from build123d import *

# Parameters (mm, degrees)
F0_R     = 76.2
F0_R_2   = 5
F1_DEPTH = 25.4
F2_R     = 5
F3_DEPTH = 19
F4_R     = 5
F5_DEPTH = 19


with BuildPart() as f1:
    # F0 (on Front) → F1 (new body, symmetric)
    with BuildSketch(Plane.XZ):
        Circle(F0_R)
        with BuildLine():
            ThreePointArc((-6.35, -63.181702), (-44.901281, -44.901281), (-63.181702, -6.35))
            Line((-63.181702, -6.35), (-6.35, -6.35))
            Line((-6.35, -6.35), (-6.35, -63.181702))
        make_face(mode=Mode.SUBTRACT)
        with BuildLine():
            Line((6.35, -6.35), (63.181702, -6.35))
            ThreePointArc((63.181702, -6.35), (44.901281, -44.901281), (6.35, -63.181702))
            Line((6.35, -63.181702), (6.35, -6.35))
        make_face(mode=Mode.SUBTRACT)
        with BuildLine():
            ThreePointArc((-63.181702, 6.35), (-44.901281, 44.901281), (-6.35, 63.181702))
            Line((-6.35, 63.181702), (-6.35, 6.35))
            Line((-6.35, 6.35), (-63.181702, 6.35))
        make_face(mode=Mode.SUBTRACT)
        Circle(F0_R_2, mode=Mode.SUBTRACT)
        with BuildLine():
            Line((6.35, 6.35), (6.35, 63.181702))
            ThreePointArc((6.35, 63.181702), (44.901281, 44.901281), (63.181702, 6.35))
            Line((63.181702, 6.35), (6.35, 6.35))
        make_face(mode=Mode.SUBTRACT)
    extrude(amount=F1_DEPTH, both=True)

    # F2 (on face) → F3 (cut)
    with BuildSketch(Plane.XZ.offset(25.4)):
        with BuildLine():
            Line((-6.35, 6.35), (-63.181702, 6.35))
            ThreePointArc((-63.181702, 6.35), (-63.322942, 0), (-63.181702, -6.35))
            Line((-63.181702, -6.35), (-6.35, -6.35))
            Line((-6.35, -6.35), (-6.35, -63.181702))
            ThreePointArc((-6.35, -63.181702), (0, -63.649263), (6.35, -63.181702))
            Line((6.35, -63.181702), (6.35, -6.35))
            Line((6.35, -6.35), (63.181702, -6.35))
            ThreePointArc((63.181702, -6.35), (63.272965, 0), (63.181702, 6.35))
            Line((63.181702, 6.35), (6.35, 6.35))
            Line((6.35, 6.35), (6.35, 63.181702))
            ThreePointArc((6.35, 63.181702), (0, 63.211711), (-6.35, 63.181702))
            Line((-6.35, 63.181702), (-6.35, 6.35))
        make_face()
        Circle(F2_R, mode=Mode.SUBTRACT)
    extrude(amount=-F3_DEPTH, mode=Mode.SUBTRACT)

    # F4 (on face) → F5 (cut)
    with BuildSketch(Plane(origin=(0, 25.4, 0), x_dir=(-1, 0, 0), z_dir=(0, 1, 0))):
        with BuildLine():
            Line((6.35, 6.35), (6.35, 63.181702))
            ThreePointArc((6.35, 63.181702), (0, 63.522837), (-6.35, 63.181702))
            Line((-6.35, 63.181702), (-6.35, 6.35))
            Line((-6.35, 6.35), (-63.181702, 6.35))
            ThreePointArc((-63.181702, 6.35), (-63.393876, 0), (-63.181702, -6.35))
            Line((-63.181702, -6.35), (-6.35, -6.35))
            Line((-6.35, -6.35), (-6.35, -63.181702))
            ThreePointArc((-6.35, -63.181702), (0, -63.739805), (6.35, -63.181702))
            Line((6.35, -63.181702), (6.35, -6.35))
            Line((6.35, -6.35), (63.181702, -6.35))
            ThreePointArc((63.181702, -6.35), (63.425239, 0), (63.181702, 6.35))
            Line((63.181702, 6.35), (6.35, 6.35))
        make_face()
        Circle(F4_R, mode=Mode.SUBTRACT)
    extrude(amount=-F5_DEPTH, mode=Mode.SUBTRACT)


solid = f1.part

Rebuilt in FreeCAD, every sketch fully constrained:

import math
import FreeCAD as App
import Part
import Sketcher
from FreeCAD import Vector
Q = App.Units.Quantity

doc = App.newDocument("Part")
body = doc.addObject("PartDesign::Body", "Body")

# Sketch on XZ plane
sketch1 = body.newObject("Sketcher::SketchObject", "Sketch")
sketch1.AttachmentSupport = (doc.getObject("XZ_Plane"), [""])
sketch1.MapMode = "FlatFace"
sketch1.addGeometry(Part.Circle(Vector(0, 0, 0), Vector(0, 0, 1), 76), False)
sketch1.addGeometry(Part.LineSegment(Vector(-6, -6, 0), Vector(-6, -63, 0)), False)
sketch1.addGeometry(Part.ArcOfCircle(Part.Circle(Vector(0, 0, 0), Vector(0, 0, 1), 63), math.radians(-174), math.radians(-96)), False)
sketch1.addGeometry(Part.LineSegment(Vector(-63, -6, 0), Vector(-6, -6, 0)), False)
sketch1.addGeometry(Part.Circle(Vector(0, 0, 0), Vector(0, 0, 1), 5), False)
sketch1.addGeometry(Part.LineSegment(Vector(6, -63, 0), Vector(6, -6, 0)), False)
sketch1.addGeometry(Part.LineSegment(Vector(6, -6, 0), Vector(63, -6, 0)), False)
sketch1.addGeometry(Part.ArcOfCircle(Part.Circle(Vector(0, 0, 0), Vector(0, 0, 1), 63), math.radians(-84), math.radians(-6)), False)
sketch1.addGeometry(Part.LineSegment(Vector(-6, 6, 0), Vector(-63, 6, 0)), False)
sketch1.addGeometry(Part.ArcOfCircle(Part.Circle(Vector(0, 0, 0), Vector(0, 0, 1), 63), math.radians(96), math.radians(174)), False)
sketch1.addGeometry(Part.LineSegment(Vector(-6, 63, 0), Vector(-6, 6, 0)), False)
sketch1.addGeometry(Part.LineSegment(Vector(63, 6, 0), Vector(6, 6, 0)), False)
sketch1.addGeometry(Part.LineSegment(Vector(6, 6, 0), Vector(6, 63, 0)), False)
sketch1.addGeometry(Part.ArcOfCircle(Part.Circle(Vector(0, 0, 0), Vector(0, 0, 1), 63), math.radians(6), math.radians(84)), False)
sketch1.addConstraint(Sketcher.Constraint("Coincident", 1, 2, 2, 2))
sketch1.addConstraint(Sketcher.Constraint("Coincident", 2, 1, 3, 1))
sketch1.addConstraint(Sketcher.Constraint("Coincident", 3, 2, 1, 1))
sketch1.addConstraint(Sketcher.Constraint("Coincident", 5, 2, 6, 1))
sketch1.addConstraint(Sketcher.Constraint("Coincident", 6, 2, 7, 2))
sketch1.addConstraint(Sketcher.Constraint("Coincident", 7, 1, 5, 1))
sketch1.addConstraint(Sketcher.Constraint("Coincident", 8, 2, 9, 2))
sketch1.addConstraint(Sketcher.Constraint("Coincident", 9, 1, 10, 1))
sketch1.addConstraint(Sketcher.Constraint("Coincident", 10, 2, 8, 1))
sketch1.addConstraint(Sketcher.Constraint("Coincident", 11, 2, 12, 1))
sketch1.addConstraint(Sketcher.Constraint("Coincident", 12, 2, 13, 2))
sketch1.addConstraint(Sketcher.Constraint("Coincident", 13, 1, 11, 1))
sketch1.addConstraint(Sketcher.Constraint("Vertical", 1))
sketch1.addConstraint(Sketcher.Constraint("Horizontal", 3))
sketch1.addConstraint(Sketcher.Constraint("Vertical", 5))
sketch1.addConstraint(Sketcher.Constraint("Horizontal", 6))
sketch1.addConstraint(Sketcher.Constraint("Horizontal", 8))
sketch1.addConstraint(Sketcher.Constraint("Vertical", 10))
sketch1.addConstraint(Sketcher.Constraint("Horizontal", 11))
sketch1.addConstraint(Sketcher.Constraint("Vertical", 12))
sketch1.addConstraint(Sketcher.Constraint("Coincident", 0, 3, -1, 1))
sketch1.addConstraint(Sketcher.Constraint("Coincident", 2, 3, -1, 1))
sketch1.addConstraint(Sketcher.Constraint("Coincident", 4, 3, -1, 1))
sketch1.addConstraint(Sketcher.Constraint("Coincident", 7, 3, -1, 1))
sketch1.addConstraint(Sketcher.Constraint("Coincident", 9, 3, -1, 1))
sketch1.addConstraint(Sketcher.Constraint("Coincident", 13, 3, -1, 1))
sketch1.addConstraint(Sketcher.Constraint("Equal", 2, 7))
sketch1.addConstraint(Sketcher.Constraint("Equal", 7, 9))
sketch1.addConstraint(Sketcher.Constraint("Equal", 9, 13))
sketch1.addConstraint(Sketcher.Constraint("Symmetric", 5, 2, 10, 2, -1, 1))
sketch1.addConstraint(Sketcher.Constraint("Symmetric", 3, 2, 11, 2, -1, 1))
sketch1.addConstraint(Sketcher.Constraint("Symmetric", 3, 2, 5, 2, -2))
sketch1.addConstraint(Sketcher.Constraint("Equal", 11, 1))
sketch1.addConstraint(Sketcher.Constraint("Diameter", 4, Q("10 mm")))
sketch1.addConstraint(Sketcher.Constraint("Diameter", 0, Q("152.4 mm")))
sketch1.addConstraint(Sketcher.Constraint("DistanceX", 1, 2, 7, 1, Q("12.7 mm")))
sketch1.addConstraint(Sketcher.Constraint("Radius", 2, Q("63.499997 mm")))
pad1 = body.newObject("PartDesign::Pad", "Pad")
pad1.Profile = sketch1
pad1.Length = 50.8
pad1.Midplane = True

# Sketch on XZ plane
sketch2 = body.newObject("Sketcher::SketchObject", "Sketch001")
sketch2.AttachmentSupport = (doc.getObject("XZ_Plane"), [""])
sketch2.MapMode = "FlatFace"
sketch2.AttachmentOffset = App.Placement(Vector(0, 0, 25.4), App.Rotation())
sketch2.addGeometry(Part.LineSegment(Vector(-6, 6, 0), Vector(-63, 6, 0)), False)
sketch2.addGeometry(Part.ArcOfCircle(Part.Circle(Vector(79, 0, 0), Vector(0, 0, 1), 143), math.radians(177.45), math.radians(182.55)), False)
sketch2.addGeometry(Part.LineSegment(Vector(-63, -6, 0), Vector(-6, -6, 0)), False)
sketch2.addGeometry(Part.LineSegment(Vector(-6, -6, 0), Vector(-6, -63, 0)), False)
sketch2.addGeometry(Part.ArcOfCircle(Part.Circle(Vector(0, -20, 0), Vector(0, 0, 1), 43), math.radians(-98.42), math.radians(-81.58)), False)
sketch2.addGeometry(Part.LineSegment(Vector(6, -63, 0), Vector(6, -6, 0)), False)
sketch2.addGeometry(Part.LineSegment(Vector(6, -6, 0), Vector(63, -6, 0)), False)
sketch2.addGeometry(Part.ArcOfCircle(Part.Circle(Vector(-158, 0, 0), Vector(0, 0, 1), 221), math.radians(-1.65), math.radians(1.65)), False)
sketch2.addGeometry(Part.LineSegment(Vector(63, 6, 0), Vector(6, 6, 0)), False)
sketch2.addGeometry(Part.LineSegment(Vector(6, 6, 0), Vector(6, 63, 0)), False)
sketch2.addGeometry(Part.ArcOfCircle(Part.Circle(Vector(0, -609, 0), Vector(0, 0, 1), 672), math.radians(89.46), math.radians(90.54)), False)
sketch2.addGeometry(Part.LineSegment(Vector(-6, 63, 0), Vector(-6, 6, 0)), False)
sketch2.addGeometry(Part.Circle(Vector(0, 0, 0), Vector(0, 0, 1), 5), False)
sketch2.addConstraint(Sketcher.Constraint("Coincident", 0, 2, 1, 1))
sketch2.addConstraint(Sketcher.Constraint("Coincident", 1, 2, 2, 1))
sketch2.addConstraint(Sketcher.Constraint("Coincident", 2, 2, 3, 1))
sketch2.addConstraint(Sketcher.Constraint("Coincident", 3, 2, 4, 1))
sketch2.addConstraint(Sketcher.Constraint("Coincident", 4, 2, 5, 1))
sketch2.addConstraint(Sketcher.Constraint("Coincident", 5, 2, 6, 1))
sketch2.addConstraint(Sketcher.Constraint("Coincident", 6, 2, 7, 1))
sketch2.addConstraint(Sketcher.Constraint("Coincident", 7, 2, 8, 1))
sketch2.addConstraint(Sketcher.Constraint("Coincident", 8, 2, 9, 1))
sketch2.addConstraint(Sketcher.Constraint("Coincident", 9, 2, 10, 1))
sketch2.addConstraint(Sketcher.Constraint("Coincident", 10, 2, 11, 1))
sketch2.addConstraint(Sketcher.Constraint("Coincident", 11, 2, 0, 1))
sketch2.addConstraint(Sketcher.Constraint("Horizontal", 0))
sketch2.addConstraint(Sketcher.Constraint("Horizontal", 2))
sketch2.addConstraint(Sketcher.Constraint("Vertical", 3))
sketch2.addConstraint(Sketcher.Constraint("Vertical", 5))
sketch2.addConstraint(Sketcher.Constraint("Horizontal", 6))
sketch2.addConstraint(Sketcher.Constraint("Horizontal", 8))
sketch2.addConstraint(Sketcher.Constraint("Vertical", 9))
sketch2.addConstraint(Sketcher.Constraint("Vertical", 11))
sketch2.addConstraint(Sketcher.Constraint("Coincident", 12, 3, -1, 1))
sketch2.addConstraint(Sketcher.Constraint("Symmetric", 0, 2, 6, 2, -1, 1))
sketch2.addConstraint(Sketcher.Constraint("Symmetric", 1, 2, 7, 2, -1, 1))
sketch2.addConstraint(Sketcher.Constraint("Symmetric", 3, 2, 9, 2, -1, 1))
sketch2.addConstraint(Sketcher.Constraint("Symmetric", 3, 2, 4, 2, -2))
sketch2.addConstraint(Sketcher.Constraint("Symmetric", 1, 2, 6, 2, -2))
sketch2.addConstraint(Sketcher.Constraint("PointOnObject", 10, 3, -2))
sketch2.addConstraint(Sketcher.Constraint("Equal", 0, 2))
sketch2.addConstraint(Sketcher.Constraint("Equal", 8, 3))
sketch2.addConstraint(Sketcher.Constraint("Diameter", 12, Q("10 mm")))
sketch2.addConstraint(Sketcher.Constraint("DistanceY", 1, 2, 0, 2, Q("12.7 mm")))
sketch2.addConstraint(Sketcher.Constraint("DistanceX", 3, 2, 4, 2, Q("12.7 mm")))
sketch2.addConstraint(Sketcher.Constraint("Radius", 1, Q("142.815239 mm")))
sketch2.addConstraint(Sketcher.Constraint("Radius", 10, Q("671.855119 mm")))
sketch2.addConstraint(Sketcher.Constraint("Radius", 4, Q("43.353823 mm")))
sketch2.addConstraint(Sketcher.Constraint("Radius", 7, Q("220.959364 mm")))
sketch2.addConstraint(Sketcher.Constraint("DistanceX", 7, 3, -1, 1, Q("157.686399 mm")))
pocket1 = body.newObject("PartDesign::Pocket", "Pocket")
pocket1.Profile = sketch2
pocket1.Length = 19

# Sketch on XZ plane
sketch3 = body.newObject("Sketcher::SketchObject", "Sketch002")
sketch3.AttachmentSupport = (doc.getObject("XZ_Plane"), [""])
sketch3.MapMode = "FlatFace"
sketch3.AttachmentOffset = App.Placement(Vector(0, 0, -25.4), App.Rotation())
sketch3.addGeometry(Part.LineSegment(Vector(-6, 6, 0), Vector(-6, 63, 0)), False)
sketch3.addGeometry(Part.ArcOfCircle(Part.Circle(Vector(0, 4, 0), Vector(0, 0, 1), 59), math.radians(83.85), math.radians(96.15)), False)
sketch3.addGeometry(Part.LineSegment(Vector(6, 63, 0), Vector(6, 6, 0)), False)
sketch3.addGeometry(Part.LineSegment(Vector(6, 6, 0), Vector(63, 6, 0)), False)
sketch3.addGeometry(Part.ArcOfCircle(Part.Circle(Vector(-32, 0, 0), Vector(0, 0, 1), 95), math.radians(-3.83), math.radians(3.83)), False)
sketch3.addGeometry(Part.LineSegment(Vector(63, -6, 0), Vector(6, -6, 0)), False)
sketch3.addGeometry(Part.LineSegment(Vector(6, -6, 0), Vector(6, -63, 0)), False)
sketch3.addGeometry(Part.ArcOfCircle(Part.Circle(Vector(0, -27, 0), Vector(0, 0, 1), 36), math.radians(-100), math.radians(-80)), False)
sketch3.addGeometry(Part.LineSegment(Vector(-6, -63, 0), Vector(-6, -6, 0)), False)
sketch3.addGeometry(Part.LineSegment(Vector(-6, -6, 0), Vector(-63, -6, 0)), False)
sketch3.addGeometry(Part.ArcOfCircle(Part.Circle(Vector(19, 0, 0), Vector(0, 0, 1), 83), math.radians(175.61), math.radians(184.39)), False)
sketch3.addGeometry(Part.LineSegment(Vector(-63, 6, 0), Vector(-6, 6, 0)), False)
sketch3.addGeometry(Part.Circle(Vector(0, 0, 0), Vector(0, 0, 1), 5), False)
sketch3.addConstraint(Sketcher.Constraint("Coincident", 0, 2, 1, 2))
sketch3.addConstraint(Sketcher.Constraint("Coincident", 1, 1, 2, 1))
sketch3.addConstraint(Sketcher.Constraint("Coincident", 2, 2, 3, 1))
sketch3.addConstraint(Sketcher.Constraint("Coincident", 3, 2, 4, 2))
sketch3.addConstraint(Sketcher.Constraint("Coincident", 4, 1, 5, 1))
sketch3.addConstraint(Sketcher.Constraint("Coincident", 5, 2, 6, 1))
sketch3.addConstraint(Sketcher.Constraint("Coincident", 6, 2, 7, 2))
sketch3.addConstraint(Sketcher.Constraint("Coincident", 7, 1, 8, 1))
sketch3.addConstraint(Sketcher.Constraint("Coincident", 8, 2, 9, 1))
sketch3.addConstraint(Sketcher.Constraint("Coincident", 9, 2, 10, 2))
sketch3.addConstraint(Sketcher.Constraint("Coincident", 10, 1, 11, 1))
sketch3.addConstraint(Sketcher.Constraint("Coincident", 11, 2, 0, 1))
sketch3.addConstraint(Sketcher.Constraint("Vertical", 0))
sketch3.addConstraint(Sketcher.Constraint("Vertical", 2))
sketch3.addConstraint(Sketcher.Constraint("Horizontal", 3))
sketch3.addConstraint(Sketcher.Constraint("Horizontal", 5))
sketch3.addConstraint(Sketcher.Constraint("Vertical", 6))
sketch3.addConstraint(Sketcher.Constraint("Vertical", 8))
sketch3.addConstraint(Sketcher.Constraint("Horizontal", 9))
sketch3.addConstraint(Sketcher.Constraint("Horizontal", 11))
sketch3.addConstraint(Sketcher.Constraint("Coincident", 12, 3, -1, 1))
sketch3.addConstraint(Sketcher.Constraint("Symmetric", 0, 2, 6, 2, -1, 1))
sketch3.addConstraint(Sketcher.Constraint("Symmetric", 1, 1, 7, 1, -1, 1))
sketch3.addConstraint(Sketcher.Constraint("Symmetric", 3, 2, 9, 2, -1, 1))
sketch3.addConstraint(Sketcher.Constraint("Symmetric", 4, 1, 10, 1, -1, 1))
sketch3.addConstraint(Sketcher.Constraint("Symmetric", 0, 2, 1, 1, -2))
sketch3.addConstraint(Sketcher.Constraint("Symmetric", 4, 1, 9, 2, -2))
sketch3.addConstraint(Sketcher.Constraint("Equal", 11, 0))
sketch3.addConstraint(Sketcher.Constraint("Diameter", 12, Q("10 mm")))
sketch3.addConstraint(Sketcher.Constraint("DistanceX", 0, 2, 1, 1, Q("12.7 mm")))
sketch3.addConstraint(Sketcher.Constraint("DistanceY", 4, 1, 3, 2, Q("12.7 mm")))
sketch3.addConstraint(Sketcher.Constraint("Radius", 1, Q("59.27107 mm")))
sketch3.addConstraint(Sketcher.Constraint("Radius", 10, Q("82.906931 mm")))
sketch3.addConstraint(Sketcher.Constraint("Radius", 4, Q("95.128333 mm")))
sketch3.addConstraint(Sketcher.Constraint("Radius", 7, Q("36.403656 mm")))
sketch3.addConstraint(Sketcher.Constraint("DistanceX", 10, 1, -1, 1, Q("63.181702 mm")))
pocket2 = body.newObject("PartDesign::Pocket", "Pocket001")
pocket2.Profile = sketch3
pocket2.Length = 19
pocket2.Reversed = True

doc.recompute()
